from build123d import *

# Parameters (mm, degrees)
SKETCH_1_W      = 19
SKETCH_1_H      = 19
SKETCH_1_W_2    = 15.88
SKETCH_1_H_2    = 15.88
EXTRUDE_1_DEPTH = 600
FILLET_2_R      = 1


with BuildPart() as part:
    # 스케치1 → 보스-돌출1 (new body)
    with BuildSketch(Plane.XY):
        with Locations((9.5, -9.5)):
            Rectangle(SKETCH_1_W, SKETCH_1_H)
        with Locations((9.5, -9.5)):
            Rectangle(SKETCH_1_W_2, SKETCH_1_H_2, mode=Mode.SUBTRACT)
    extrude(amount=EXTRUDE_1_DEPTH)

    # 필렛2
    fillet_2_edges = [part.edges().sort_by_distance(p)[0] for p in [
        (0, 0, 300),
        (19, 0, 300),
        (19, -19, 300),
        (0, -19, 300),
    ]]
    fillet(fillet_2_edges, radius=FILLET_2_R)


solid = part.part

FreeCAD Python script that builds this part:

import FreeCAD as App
import Part
import Sketcher

V = App.Vector


def edges_at(feature, points):
    """Names of the edges that pass closest to the given points."""
    edges = feature.Shape.Edges
    near = lambda p: min(range(len(edges)), key=lambda i: edges[i].distToShape(Part.Vertex(*p))[0])
    return sorted({f"Edge{near(p) + 1}" for p in points})


def add_polygon(sketch, points):
    """Adds a closed chain of lines whose ends are joined by coincident constraints."""
    first, n = sketch.GeometryCount, len(points)
    for a, b in zip(points, points[1:] + points[:1]):
        sketch.addGeometry(Part.LineSegment(App.Vector(*a, 0), App.Vector(*b, 0)), False)
    for i in range(n):
        sketch.addConstraint(Sketcher.Constraint("Coincident", first + i, 2, first + (i + 1) % n, 1))

doc = App.newDocument("Part")
body = doc.addObject("PartDesign::Body", "Body")

# Sketch on XY plane
sketch1 = doc.addObject("Sketcher::SketchObject", "Sketch")
body.addObject(sketch1)
sketch1.AttachmentSupport = (doc.XY_Plane, [""])
sketch1.MapMode = "FlatFace"
add_polygon(sketch1, [(0, 0), (0, -19), (19, -19), (19, 0)])  # lines 0-3
add_polygon(sketch1, [(17, -17), (2, -17), (2, -2), (17, -2)])  # lines 4-7
sketch1.addConstraint([
    Sketcher.Constraint("Vertical", 0),
    Sketcher.Constraint("Horizontal", 1),
    Sketcher.Constraint("Vertical", 2),
    Sketcher.Constraint("Horizontal", 3),
    Sketcher.Constraint("Horizontal", 4),
    Sketcher.Constraint("Vertical", 5),
    Sketcher.Constraint("Horizontal", 6),
    Sketcher.Constraint("Vertical", 7),
    Sketcher.Constraint("Coincident", 3, 2, -1, 1),
    Sketcher.Constraint("Equal", 3, 0),
    Sketcher.Constraint("Equal", 6, 5),
    Sketcher.Constraint("DistanceX", 1, 1, 1, 2, 19.0),
    Sketcher.Constraint("DistanceX", 4, 2, 4, 1, 15.88),
    Sketcher.Constraint("DistanceX", -1, 1, 4, 2, 1.56),
    Sketcher.Constraint("DistanceY", 4, 2, -1, 1, 17.44),
])
pad1 = doc.addObject("PartDesign::Pad", "Pad")
body.addObject(pad1)
pad1.Profile = sketch1
pad1.Length = 600
doc.recompute()

fillet = doc.addObject("PartDesign::Fillet", "Fillet")
body.addObject(fillet)
fillet.Base = (pad1, edges_at(pad1, [
    (0, 0, 300),
    (19, 0, 300),
    (19, -19, 300),
    (0, -19, 300),
]))
fillet.Radius = 1

doc.recompute()
